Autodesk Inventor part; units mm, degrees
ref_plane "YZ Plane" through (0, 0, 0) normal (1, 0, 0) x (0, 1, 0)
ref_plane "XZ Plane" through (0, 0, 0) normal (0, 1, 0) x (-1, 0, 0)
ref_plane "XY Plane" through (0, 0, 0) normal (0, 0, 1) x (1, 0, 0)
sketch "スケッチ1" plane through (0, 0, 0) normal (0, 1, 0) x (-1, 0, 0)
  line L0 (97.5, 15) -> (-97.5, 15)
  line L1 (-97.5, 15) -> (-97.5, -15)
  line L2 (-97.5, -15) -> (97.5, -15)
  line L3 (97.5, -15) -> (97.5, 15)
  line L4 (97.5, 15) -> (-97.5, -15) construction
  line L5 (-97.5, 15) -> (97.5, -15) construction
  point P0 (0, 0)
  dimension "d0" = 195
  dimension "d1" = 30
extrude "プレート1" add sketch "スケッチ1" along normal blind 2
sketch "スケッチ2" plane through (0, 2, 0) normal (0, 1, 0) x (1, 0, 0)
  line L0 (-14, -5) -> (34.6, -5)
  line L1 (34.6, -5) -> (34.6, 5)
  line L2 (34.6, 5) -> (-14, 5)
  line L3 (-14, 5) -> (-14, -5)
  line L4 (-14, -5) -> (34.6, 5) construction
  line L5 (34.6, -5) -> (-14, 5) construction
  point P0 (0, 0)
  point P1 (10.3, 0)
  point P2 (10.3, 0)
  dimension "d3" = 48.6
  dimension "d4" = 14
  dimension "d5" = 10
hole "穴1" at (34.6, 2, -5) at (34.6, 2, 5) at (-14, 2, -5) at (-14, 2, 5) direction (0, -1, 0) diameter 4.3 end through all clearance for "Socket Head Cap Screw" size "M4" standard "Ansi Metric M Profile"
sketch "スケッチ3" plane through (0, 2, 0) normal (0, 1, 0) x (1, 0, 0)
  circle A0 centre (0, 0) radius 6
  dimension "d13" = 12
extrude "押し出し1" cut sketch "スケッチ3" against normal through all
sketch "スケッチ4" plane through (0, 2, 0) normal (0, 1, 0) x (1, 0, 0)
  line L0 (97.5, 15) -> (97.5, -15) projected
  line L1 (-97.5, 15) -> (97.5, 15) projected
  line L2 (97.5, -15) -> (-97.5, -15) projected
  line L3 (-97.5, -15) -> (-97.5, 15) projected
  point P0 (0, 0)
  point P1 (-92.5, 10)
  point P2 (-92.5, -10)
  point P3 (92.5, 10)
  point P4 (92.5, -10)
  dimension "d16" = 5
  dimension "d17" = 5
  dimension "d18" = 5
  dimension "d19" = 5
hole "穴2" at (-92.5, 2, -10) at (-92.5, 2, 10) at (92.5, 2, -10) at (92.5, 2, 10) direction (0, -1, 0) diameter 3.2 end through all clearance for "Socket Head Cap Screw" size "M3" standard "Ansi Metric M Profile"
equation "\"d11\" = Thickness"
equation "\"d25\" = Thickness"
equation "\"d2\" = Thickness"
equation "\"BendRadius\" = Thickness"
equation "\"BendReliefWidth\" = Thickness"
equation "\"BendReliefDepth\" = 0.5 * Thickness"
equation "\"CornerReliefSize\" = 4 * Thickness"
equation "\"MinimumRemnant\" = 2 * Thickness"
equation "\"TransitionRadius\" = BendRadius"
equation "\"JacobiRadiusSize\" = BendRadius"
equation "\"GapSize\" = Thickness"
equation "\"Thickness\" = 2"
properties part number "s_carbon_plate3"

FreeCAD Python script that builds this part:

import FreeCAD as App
import Part
import Sketcher


def add_polygon(sketch, points):
    """Adds a closed chain of lines whose ends are joined by coincident constraints."""
    first, n = sketch.GeometryCount, len(points)
    for a, b in zip(points, points[1:] + points[:1]):
        sketch.addGeometry(Part.LineSegment(App.Vector(*a, 0), App.Vector(*b, 0)), False)
    for i in range(n):
        sketch.addConstraint(Sketcher.Constraint("Coincident", first + i, 2, first + (i + 1) % n, 1))

doc = App.newDocument("Part")
body = doc.addObject("PartDesign::Body", "Body")

# Sketch on XZ plane
sketch1 = body.newObject("Sketcher::SketchObject", "Sketch")
sketch1.AttachmentSupport = (doc.getObject("XZ_Plane"), [""])
sketch1.MapMode = "FlatFace"
add_polygon(sketch1, [(-98, -15), (-98, 15), (98, 15), (98, -15)])  # lines 0-3
sketch1.addConstraint([
    Sketcher.Constraint("Vertical", 0),
    Sketcher.Constraint("Horizontal", 1),
    Sketcher.Constraint("Vertical", 2),
    Sketcher.Constraint("Horizontal", 3),
    Sketcher.Constraint("Symmetric", 0, 2, 2, 2, -1, 1),
    Sketcher.Constraint("DistanceX", 1, 1, 1, 2, 195.0),
    Sketcher.Constraint("DistanceY", 0, 1, 0, 2, 30.0),
])
pad1 = body.newObject("PartDesign::Pad", "Pad")
pad1.Profile = sketch1
pad1.Length = 2
pad1.Reversed = True

# Sketch on XZ plane
sketch2 = body.newObject("Sketcher::SketchObject", "Sketch001")
sketch2.AttachmentSupport = (doc.getObject("XZ_Plane"), [""])
sketch2.MapMode = "FlatFace"
sketch2.AttachmentOffset = App.Placement(App.Vector(0, 0, -2), App.Rotation())
sketch2.addGeometry([
    Part.Circle(App.Vector(34.6, -5, 0), App.Vector(0, 0, 1), 2.1),
    Part.Circle(App.Vector(34.6, 5, 0), App.Vector(0, 0, 1), 2.1),
    Part.Circle(App.Vector(-14, -5, 0), App.Vector(0, 0, 1), 2.1),
    Part.Circle(App.Vector(-14, 5, 0), App.Vector(0, 0, 1), 2.1),
], False)
sketch2.addConstraint([
    Sketcher.Constraint("Equal", 0, 1),
    Sketcher.Constraint("Equal", 1, 2),
    Sketcher.Constraint("Equal", 2, 3),
    Sketcher.Constraint("Symmetric", 0, 3, 1, 3, -1),
    Sketcher.Constraint("Symmetric", 2, 3, 3, 3, -1),
    Sketcher.Constraint("Horizontal", 0, 3, 2, 3),
    Sketcher.Constraint("Diameter", 0, 4.3),
    Sketcher.Constraint("DistanceY", 0, 3, -1, 1, 5.0),
    Sketcher.Constraint("DistanceX", 2, 3, -1, 1, 14.0),
    Sketcher.Constraint("DistanceX", -1, 1, 0, 3, 34.6),
])
doc.recompute()
hole = body.newObject("PartDesign::Hole", "Hole")
hole.Profile = sketch2
hole.ThreadType = "None"
hole.Diameter = 4.3
hole.DepthType = "ThroughAll"
hole.Reversed = True

# Sketch on XZ plane
sketch3 = body.newObject("Sketcher::SketchObject", "Sketch002")
sketch3.AttachmentSupport = (doc.getObject("XZ_Plane"), [""])
sketch3.MapMode = "FlatFace"
sketch3.AttachmentOffset = App.Placement(App.Vector(0, 0, -2), App.Rotation())
sketch3.addGeometry(Part.Circle(App.Vector(0, 0, 0), App.Vector(0, 0, 1), 6), False)
sketch3.addConstraint([
    Sketcher.Constraint("Coincident", 0, 3, -1, 1),
    Sketcher.Constraint("Diameter", 0, 12.0),
])
pocket1 = body.newObject("PartDesign::Pocket", "Pocket")
pocket1.Profile = sketch3
pocket1.Type = "ThroughAll"
pocket1.Reversed = True

# Sketch on XZ plane
sketch4 = body.newObject("Sketcher::SketchObject", "Sketch003")
sketch4.AttachmentSupport = (doc.getObject("XZ_Plane"), [""])
sketch4.MapMode = "FlatFace"
sketch4.AttachmentOffset = App.Placement(App.Vector(0, 0, -2), App.Rotation())
sketch4.addGeometry([
    Part.Circle(App.Vector(-92.5, -10, 0), App.Vector(0, 0, 1), 1.6),
    Part.Circle(App.Vector(-92.5, 10, 0), App.Vector(0, 0, 1), 1.6),
    Part.Circle(App.Vector(92.5, -10, 0), App.Vector(0, 0, 1), 1.6),
    Part.Circle(App.Vector(92.5, 10, 0), App.Vector(0, 0, 1), 1.6),
], False)
sketch4.addConstraint([
    Sketcher.Constraint("Equal", 0, 1),
    Sketcher.Constraint("Equal", 1, 2),
    Sketcher.Constraint("Equal", 2, 3),
    Sketcher.Constraint("Symmetric", 1, 3, 2, 3, -1, 1),
    Sketcher.Constraint("Symmetric", 0, 3, 3, 3, -1, 1),
    Sketcher.Constraint("Symmetric", 0, 3, 2, 3, -2),
    Sketcher.Constraint("Diameter", 0, 3.2),
    Sketcher.Constraint("DistanceY", 0, 3, -1, 1, 10.0),
    Sketcher.Constraint("DistanceX", 0, 3, 2, 3, 185.0),
])
doc.recompute()
hole2 = body.newObject("PartDesign::Hole", "Hole001")
hole2.Profile = sketch4
hole2.ThreadType = "None"
hole2.Diameter = 3.2
hole2.DepthType = "ThroughAll"
hole2.Reversed = True

doc.recompute()
